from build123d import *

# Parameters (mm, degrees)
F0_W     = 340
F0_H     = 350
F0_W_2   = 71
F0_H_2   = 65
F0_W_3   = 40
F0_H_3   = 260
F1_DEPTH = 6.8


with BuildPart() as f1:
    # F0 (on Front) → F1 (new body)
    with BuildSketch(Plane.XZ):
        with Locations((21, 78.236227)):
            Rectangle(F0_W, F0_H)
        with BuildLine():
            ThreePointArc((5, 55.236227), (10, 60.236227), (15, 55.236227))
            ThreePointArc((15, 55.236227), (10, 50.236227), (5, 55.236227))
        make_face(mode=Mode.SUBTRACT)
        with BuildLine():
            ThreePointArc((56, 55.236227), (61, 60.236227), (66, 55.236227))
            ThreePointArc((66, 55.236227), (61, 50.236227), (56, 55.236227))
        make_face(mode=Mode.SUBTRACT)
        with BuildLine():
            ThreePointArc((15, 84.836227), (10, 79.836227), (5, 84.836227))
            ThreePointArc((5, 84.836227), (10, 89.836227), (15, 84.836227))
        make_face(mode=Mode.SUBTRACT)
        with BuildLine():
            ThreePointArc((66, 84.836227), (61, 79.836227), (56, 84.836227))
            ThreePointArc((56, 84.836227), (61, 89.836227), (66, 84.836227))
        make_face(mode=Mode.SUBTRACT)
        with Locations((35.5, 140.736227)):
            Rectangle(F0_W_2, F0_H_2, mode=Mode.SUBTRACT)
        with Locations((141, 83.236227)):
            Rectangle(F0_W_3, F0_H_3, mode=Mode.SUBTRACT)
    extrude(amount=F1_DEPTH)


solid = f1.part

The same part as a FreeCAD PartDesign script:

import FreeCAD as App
import Part
import Sketcher

doc = App.newDocument("Part")
body = doc.addObject("PartDesign::Body", "Body")

# Sketch on XZ plane
sketch1 = doc.addObject("Sketcher::SketchObject", "Sketch")
body.addObject(sketch1)
sketch1.AttachmentSupport = (doc.XZ_Plane, [""])
sketch1.MapMode = "FlatFace"
sketch1.addGeometry(Part.LineSegment(App.Vector(-149, 253.236227, 0), App.Vector(-149, -96.763773, 0)), False)
sketch1.addGeometry(Part.LineSegment(App.Vector(-149, -96.763773, 0), App.Vector(191, -96.763773, 0)), False)
sketch1.addGeometry(Part.LineSegment(App.Vector(191, -96.763773, 0), App.Vector(191, 253.236227, 0)), False)
sketch1.addGeometry(Part.LineSegment(App.Vector(191, 253.236227, 0), App.Vector(-149, 253.236227, 0)), False)
sketch1.addGeometry(Part.Circle(App.Vector(10, 55.236227, 0), App.Vector(0, 0, 1), 5), False)
sketch1.addGeometry(Part.Circle(App.Vector(61, 55.236227, 0), App.Vector(0, 0, 1), 5), False)
sketch1.addGeometry(Part.Circle(App.Vector(10, 84.836227, 0), App.Vector(0, 0, 1), 5), False)
sketch1.addGeometry(Part.LineSegment(App.Vector(71, 108.236227, 0), App.Vector(0, 108.236227, 0)), False)
sketch1.addGeometry(Part.LineSegment(App.Vector(0, 108.236227, 0), App.Vector(0, 173.236227, 0)), False)
sketch1.addGeometry(Part.LineSegment(App.Vector(0, 173.236227, 0), App.Vector(71, 173.236227, 0)), False)
sketch1.addGeometry(Part.LineSegment(App.Vector(71, 173.236227, 0), App.Vector(71, 108.236227, 0)), False)
sketch1.addGeometry(Part.Circle(App.Vector(61, 84.836227, 0), App.Vector(0, 0, 1), 5), False)
sketch1.addGeometry(Part.LineSegment(App.Vector(161, -46.763773, 0), App.Vector(121, -46.763773, 0)), False)
sketch1.addGeometry(Part.LineSegment(App.Vector(121, -46.763773, 0), App.Vector(121, 213.236227, 0)), False)
sketch1.addGeometry(Part.LineSegment(App.Vector(121, 213.236227, 0), App.Vector(161, 213.236227, 0)), False)
sketch1.addGeometry(Part.LineSegment(App.Vector(161, 213.236227, 0), App.Vector(161, -46.763773, 0)), False)
sketch1.addConstraint(Sketcher.Constraint("Coincident", 0, 2, 1, 1))
sketch1.addConstraint(Sketcher.Constraint("Coincident", 1, 2, 2, 1))
sketch1.addConstraint(Sketcher.Constraint("Coincident", 2, 2, 3, 1))
sketch1.addConstraint(Sketcher.Constraint("Coincident", 3, 2, 0, 1))
sketch1.addConstraint(Sketcher.Constraint("Coincident", 7, 2, 8, 1))
sketch1.addConstraint(Sketcher.Constraint("Coincident", 8, 2, 9, 1))
sketch1.addConstraint(Sketcher.Constraint("Coincident", 9, 2, 10, 1))
sketch1.addConstraint(Sketcher.Constraint("Coincident", 10, 2, 7, 1))
sketch1.addConstraint(Sketcher.Constraint("Coincident", 12, 2, 13, 1))
sketch1.addConstraint(Sketcher.Constraint("Coincident", 13, 2, 14, 1))
sketch1.addConstraint(Sketcher.Constraint("Coincident", 14, 2, 15, 1))
sketch1.addConstraint(Sketcher.Constraint("Coincident", 15, 2, 12, 1))
sketch1.addConstraint(Sketcher.Constraint("Vertical", 0))
sketch1.addConstraint(Sketcher.Constraint("Horizontal", 1))
sketch1.addConstraint(Sketcher.Constraint("Vertical", 2))
sketch1.addConstraint(Sketcher.Constraint("Horizontal", 3))
sketch1.addConstraint(Sketcher.Constraint("Horizontal", 7))
sketch1.addConstraint(Sketcher.Constraint("Vertical", 8))
sketch1.addConstraint(Sketcher.Constraint("Horizontal", 9))
sketch1.addConstraint(Sketcher.Constraint("Vertical", 10))
sketch1.addConstraint(Sketcher.Constraint("Horizontal", 12))
sketch1.addConstraint(Sketcher.Constraint("Vertical", 13))
sketch1.addConstraint(Sketcher.Constraint("Horizontal", 14))
sketch1.addConstraint(Sketcher.Constraint("Vertical", 15))
sketch1.addConstraint(Sketcher.Constraint("Equal", 4, 5))
sketch1.addConstraint(Sketcher.Constraint("Equal", 5, 6))
sketch1.addConstraint(Sketcher.Constraint("Equal", 6, 11))
sketch1.addConstraint(Sketcher.Constraint("PointOnObject", 7, 2, -2))
sketch1.addConstraint(Sketcher.Constraint("Horizontal", 4, 3, 5, 3))
sketch1.addConstraint(Sketcher.Constraint("Horizontal", 6, 3, 11, 3))
sketch1.addConstraint(Sketcher.Constraint("Vertical", 4, 3, 6, 3))
sketch1.addConstraint(Sketcher.Constraint("Vertical", 5, 3, 11, 3))
sketch1.addConstraint(Sketcher.Constraint("Diameter", 4, 10.0))
sketch1.addConstraint(Sketcher.Constraint("DistanceX", 1, 1, 1, 2, 340.0))
sketch1.addConstraint(Sketcher.Constraint("DistanceX", 7, 2, 7, 1, 71.0))
sketch1.addConstraint(Sketcher.Constraint("DistanceX", 12, 2, 12, 1, 40.0))
sketch1.addConstraint(Sketcher.Constraint("DistanceY", 0, 2, 0, 1, 350.0))
sketch1.addConstraint(Sketcher.Constraint("DistanceY", 8, 1, 8, 2, 65.0))
sketch1.addConstraint(Sketcher.Constraint("DistanceY", 13, 1, 13, 2, 260.0))
sketch1.addConstraint(Sketcher.Constraint("DistanceX", -1, 1, 4, 3, 10.0))
sketch1.addConstraint(Sketcher.Constraint("DistanceX", -1, 1, 5, 3, 61.0))
sketch1.addConstraint(Sketcher.Constraint("DistanceX", 0, 2, -1, 1, 149.0))
sketch1.addConstraint(Sketcher.Constraint("DistanceX", -1, 1, 12, 2, 121.0))
sketch1.addConstraint(Sketcher.Constraint("DistanceY", 0, 2, 4, 3, 152.0))
sketch1.addConstraint(Sketcher.Constraint("DistanceY", 4, 3, 7, 2, 53.0))
sketch1.addConstraint(Sketcher.Constraint("DistanceY", 1, 2, 12, 2, 50.0))
sketch1.addConstraint(Sketcher.Constraint("DistanceY", 4, 3, 6, 3, 29.6))
sketch1.addConstraint(Sketcher.Constraint("DistanceY", -1, 1, 4, 3, 55.236227))
pad1 = doc.addObject("PartDesign::Pad", "Pad")
body.addObject(pad1)
pad1.Profile = sketch1
pad1.Length = 6.8

doc.recompute()
